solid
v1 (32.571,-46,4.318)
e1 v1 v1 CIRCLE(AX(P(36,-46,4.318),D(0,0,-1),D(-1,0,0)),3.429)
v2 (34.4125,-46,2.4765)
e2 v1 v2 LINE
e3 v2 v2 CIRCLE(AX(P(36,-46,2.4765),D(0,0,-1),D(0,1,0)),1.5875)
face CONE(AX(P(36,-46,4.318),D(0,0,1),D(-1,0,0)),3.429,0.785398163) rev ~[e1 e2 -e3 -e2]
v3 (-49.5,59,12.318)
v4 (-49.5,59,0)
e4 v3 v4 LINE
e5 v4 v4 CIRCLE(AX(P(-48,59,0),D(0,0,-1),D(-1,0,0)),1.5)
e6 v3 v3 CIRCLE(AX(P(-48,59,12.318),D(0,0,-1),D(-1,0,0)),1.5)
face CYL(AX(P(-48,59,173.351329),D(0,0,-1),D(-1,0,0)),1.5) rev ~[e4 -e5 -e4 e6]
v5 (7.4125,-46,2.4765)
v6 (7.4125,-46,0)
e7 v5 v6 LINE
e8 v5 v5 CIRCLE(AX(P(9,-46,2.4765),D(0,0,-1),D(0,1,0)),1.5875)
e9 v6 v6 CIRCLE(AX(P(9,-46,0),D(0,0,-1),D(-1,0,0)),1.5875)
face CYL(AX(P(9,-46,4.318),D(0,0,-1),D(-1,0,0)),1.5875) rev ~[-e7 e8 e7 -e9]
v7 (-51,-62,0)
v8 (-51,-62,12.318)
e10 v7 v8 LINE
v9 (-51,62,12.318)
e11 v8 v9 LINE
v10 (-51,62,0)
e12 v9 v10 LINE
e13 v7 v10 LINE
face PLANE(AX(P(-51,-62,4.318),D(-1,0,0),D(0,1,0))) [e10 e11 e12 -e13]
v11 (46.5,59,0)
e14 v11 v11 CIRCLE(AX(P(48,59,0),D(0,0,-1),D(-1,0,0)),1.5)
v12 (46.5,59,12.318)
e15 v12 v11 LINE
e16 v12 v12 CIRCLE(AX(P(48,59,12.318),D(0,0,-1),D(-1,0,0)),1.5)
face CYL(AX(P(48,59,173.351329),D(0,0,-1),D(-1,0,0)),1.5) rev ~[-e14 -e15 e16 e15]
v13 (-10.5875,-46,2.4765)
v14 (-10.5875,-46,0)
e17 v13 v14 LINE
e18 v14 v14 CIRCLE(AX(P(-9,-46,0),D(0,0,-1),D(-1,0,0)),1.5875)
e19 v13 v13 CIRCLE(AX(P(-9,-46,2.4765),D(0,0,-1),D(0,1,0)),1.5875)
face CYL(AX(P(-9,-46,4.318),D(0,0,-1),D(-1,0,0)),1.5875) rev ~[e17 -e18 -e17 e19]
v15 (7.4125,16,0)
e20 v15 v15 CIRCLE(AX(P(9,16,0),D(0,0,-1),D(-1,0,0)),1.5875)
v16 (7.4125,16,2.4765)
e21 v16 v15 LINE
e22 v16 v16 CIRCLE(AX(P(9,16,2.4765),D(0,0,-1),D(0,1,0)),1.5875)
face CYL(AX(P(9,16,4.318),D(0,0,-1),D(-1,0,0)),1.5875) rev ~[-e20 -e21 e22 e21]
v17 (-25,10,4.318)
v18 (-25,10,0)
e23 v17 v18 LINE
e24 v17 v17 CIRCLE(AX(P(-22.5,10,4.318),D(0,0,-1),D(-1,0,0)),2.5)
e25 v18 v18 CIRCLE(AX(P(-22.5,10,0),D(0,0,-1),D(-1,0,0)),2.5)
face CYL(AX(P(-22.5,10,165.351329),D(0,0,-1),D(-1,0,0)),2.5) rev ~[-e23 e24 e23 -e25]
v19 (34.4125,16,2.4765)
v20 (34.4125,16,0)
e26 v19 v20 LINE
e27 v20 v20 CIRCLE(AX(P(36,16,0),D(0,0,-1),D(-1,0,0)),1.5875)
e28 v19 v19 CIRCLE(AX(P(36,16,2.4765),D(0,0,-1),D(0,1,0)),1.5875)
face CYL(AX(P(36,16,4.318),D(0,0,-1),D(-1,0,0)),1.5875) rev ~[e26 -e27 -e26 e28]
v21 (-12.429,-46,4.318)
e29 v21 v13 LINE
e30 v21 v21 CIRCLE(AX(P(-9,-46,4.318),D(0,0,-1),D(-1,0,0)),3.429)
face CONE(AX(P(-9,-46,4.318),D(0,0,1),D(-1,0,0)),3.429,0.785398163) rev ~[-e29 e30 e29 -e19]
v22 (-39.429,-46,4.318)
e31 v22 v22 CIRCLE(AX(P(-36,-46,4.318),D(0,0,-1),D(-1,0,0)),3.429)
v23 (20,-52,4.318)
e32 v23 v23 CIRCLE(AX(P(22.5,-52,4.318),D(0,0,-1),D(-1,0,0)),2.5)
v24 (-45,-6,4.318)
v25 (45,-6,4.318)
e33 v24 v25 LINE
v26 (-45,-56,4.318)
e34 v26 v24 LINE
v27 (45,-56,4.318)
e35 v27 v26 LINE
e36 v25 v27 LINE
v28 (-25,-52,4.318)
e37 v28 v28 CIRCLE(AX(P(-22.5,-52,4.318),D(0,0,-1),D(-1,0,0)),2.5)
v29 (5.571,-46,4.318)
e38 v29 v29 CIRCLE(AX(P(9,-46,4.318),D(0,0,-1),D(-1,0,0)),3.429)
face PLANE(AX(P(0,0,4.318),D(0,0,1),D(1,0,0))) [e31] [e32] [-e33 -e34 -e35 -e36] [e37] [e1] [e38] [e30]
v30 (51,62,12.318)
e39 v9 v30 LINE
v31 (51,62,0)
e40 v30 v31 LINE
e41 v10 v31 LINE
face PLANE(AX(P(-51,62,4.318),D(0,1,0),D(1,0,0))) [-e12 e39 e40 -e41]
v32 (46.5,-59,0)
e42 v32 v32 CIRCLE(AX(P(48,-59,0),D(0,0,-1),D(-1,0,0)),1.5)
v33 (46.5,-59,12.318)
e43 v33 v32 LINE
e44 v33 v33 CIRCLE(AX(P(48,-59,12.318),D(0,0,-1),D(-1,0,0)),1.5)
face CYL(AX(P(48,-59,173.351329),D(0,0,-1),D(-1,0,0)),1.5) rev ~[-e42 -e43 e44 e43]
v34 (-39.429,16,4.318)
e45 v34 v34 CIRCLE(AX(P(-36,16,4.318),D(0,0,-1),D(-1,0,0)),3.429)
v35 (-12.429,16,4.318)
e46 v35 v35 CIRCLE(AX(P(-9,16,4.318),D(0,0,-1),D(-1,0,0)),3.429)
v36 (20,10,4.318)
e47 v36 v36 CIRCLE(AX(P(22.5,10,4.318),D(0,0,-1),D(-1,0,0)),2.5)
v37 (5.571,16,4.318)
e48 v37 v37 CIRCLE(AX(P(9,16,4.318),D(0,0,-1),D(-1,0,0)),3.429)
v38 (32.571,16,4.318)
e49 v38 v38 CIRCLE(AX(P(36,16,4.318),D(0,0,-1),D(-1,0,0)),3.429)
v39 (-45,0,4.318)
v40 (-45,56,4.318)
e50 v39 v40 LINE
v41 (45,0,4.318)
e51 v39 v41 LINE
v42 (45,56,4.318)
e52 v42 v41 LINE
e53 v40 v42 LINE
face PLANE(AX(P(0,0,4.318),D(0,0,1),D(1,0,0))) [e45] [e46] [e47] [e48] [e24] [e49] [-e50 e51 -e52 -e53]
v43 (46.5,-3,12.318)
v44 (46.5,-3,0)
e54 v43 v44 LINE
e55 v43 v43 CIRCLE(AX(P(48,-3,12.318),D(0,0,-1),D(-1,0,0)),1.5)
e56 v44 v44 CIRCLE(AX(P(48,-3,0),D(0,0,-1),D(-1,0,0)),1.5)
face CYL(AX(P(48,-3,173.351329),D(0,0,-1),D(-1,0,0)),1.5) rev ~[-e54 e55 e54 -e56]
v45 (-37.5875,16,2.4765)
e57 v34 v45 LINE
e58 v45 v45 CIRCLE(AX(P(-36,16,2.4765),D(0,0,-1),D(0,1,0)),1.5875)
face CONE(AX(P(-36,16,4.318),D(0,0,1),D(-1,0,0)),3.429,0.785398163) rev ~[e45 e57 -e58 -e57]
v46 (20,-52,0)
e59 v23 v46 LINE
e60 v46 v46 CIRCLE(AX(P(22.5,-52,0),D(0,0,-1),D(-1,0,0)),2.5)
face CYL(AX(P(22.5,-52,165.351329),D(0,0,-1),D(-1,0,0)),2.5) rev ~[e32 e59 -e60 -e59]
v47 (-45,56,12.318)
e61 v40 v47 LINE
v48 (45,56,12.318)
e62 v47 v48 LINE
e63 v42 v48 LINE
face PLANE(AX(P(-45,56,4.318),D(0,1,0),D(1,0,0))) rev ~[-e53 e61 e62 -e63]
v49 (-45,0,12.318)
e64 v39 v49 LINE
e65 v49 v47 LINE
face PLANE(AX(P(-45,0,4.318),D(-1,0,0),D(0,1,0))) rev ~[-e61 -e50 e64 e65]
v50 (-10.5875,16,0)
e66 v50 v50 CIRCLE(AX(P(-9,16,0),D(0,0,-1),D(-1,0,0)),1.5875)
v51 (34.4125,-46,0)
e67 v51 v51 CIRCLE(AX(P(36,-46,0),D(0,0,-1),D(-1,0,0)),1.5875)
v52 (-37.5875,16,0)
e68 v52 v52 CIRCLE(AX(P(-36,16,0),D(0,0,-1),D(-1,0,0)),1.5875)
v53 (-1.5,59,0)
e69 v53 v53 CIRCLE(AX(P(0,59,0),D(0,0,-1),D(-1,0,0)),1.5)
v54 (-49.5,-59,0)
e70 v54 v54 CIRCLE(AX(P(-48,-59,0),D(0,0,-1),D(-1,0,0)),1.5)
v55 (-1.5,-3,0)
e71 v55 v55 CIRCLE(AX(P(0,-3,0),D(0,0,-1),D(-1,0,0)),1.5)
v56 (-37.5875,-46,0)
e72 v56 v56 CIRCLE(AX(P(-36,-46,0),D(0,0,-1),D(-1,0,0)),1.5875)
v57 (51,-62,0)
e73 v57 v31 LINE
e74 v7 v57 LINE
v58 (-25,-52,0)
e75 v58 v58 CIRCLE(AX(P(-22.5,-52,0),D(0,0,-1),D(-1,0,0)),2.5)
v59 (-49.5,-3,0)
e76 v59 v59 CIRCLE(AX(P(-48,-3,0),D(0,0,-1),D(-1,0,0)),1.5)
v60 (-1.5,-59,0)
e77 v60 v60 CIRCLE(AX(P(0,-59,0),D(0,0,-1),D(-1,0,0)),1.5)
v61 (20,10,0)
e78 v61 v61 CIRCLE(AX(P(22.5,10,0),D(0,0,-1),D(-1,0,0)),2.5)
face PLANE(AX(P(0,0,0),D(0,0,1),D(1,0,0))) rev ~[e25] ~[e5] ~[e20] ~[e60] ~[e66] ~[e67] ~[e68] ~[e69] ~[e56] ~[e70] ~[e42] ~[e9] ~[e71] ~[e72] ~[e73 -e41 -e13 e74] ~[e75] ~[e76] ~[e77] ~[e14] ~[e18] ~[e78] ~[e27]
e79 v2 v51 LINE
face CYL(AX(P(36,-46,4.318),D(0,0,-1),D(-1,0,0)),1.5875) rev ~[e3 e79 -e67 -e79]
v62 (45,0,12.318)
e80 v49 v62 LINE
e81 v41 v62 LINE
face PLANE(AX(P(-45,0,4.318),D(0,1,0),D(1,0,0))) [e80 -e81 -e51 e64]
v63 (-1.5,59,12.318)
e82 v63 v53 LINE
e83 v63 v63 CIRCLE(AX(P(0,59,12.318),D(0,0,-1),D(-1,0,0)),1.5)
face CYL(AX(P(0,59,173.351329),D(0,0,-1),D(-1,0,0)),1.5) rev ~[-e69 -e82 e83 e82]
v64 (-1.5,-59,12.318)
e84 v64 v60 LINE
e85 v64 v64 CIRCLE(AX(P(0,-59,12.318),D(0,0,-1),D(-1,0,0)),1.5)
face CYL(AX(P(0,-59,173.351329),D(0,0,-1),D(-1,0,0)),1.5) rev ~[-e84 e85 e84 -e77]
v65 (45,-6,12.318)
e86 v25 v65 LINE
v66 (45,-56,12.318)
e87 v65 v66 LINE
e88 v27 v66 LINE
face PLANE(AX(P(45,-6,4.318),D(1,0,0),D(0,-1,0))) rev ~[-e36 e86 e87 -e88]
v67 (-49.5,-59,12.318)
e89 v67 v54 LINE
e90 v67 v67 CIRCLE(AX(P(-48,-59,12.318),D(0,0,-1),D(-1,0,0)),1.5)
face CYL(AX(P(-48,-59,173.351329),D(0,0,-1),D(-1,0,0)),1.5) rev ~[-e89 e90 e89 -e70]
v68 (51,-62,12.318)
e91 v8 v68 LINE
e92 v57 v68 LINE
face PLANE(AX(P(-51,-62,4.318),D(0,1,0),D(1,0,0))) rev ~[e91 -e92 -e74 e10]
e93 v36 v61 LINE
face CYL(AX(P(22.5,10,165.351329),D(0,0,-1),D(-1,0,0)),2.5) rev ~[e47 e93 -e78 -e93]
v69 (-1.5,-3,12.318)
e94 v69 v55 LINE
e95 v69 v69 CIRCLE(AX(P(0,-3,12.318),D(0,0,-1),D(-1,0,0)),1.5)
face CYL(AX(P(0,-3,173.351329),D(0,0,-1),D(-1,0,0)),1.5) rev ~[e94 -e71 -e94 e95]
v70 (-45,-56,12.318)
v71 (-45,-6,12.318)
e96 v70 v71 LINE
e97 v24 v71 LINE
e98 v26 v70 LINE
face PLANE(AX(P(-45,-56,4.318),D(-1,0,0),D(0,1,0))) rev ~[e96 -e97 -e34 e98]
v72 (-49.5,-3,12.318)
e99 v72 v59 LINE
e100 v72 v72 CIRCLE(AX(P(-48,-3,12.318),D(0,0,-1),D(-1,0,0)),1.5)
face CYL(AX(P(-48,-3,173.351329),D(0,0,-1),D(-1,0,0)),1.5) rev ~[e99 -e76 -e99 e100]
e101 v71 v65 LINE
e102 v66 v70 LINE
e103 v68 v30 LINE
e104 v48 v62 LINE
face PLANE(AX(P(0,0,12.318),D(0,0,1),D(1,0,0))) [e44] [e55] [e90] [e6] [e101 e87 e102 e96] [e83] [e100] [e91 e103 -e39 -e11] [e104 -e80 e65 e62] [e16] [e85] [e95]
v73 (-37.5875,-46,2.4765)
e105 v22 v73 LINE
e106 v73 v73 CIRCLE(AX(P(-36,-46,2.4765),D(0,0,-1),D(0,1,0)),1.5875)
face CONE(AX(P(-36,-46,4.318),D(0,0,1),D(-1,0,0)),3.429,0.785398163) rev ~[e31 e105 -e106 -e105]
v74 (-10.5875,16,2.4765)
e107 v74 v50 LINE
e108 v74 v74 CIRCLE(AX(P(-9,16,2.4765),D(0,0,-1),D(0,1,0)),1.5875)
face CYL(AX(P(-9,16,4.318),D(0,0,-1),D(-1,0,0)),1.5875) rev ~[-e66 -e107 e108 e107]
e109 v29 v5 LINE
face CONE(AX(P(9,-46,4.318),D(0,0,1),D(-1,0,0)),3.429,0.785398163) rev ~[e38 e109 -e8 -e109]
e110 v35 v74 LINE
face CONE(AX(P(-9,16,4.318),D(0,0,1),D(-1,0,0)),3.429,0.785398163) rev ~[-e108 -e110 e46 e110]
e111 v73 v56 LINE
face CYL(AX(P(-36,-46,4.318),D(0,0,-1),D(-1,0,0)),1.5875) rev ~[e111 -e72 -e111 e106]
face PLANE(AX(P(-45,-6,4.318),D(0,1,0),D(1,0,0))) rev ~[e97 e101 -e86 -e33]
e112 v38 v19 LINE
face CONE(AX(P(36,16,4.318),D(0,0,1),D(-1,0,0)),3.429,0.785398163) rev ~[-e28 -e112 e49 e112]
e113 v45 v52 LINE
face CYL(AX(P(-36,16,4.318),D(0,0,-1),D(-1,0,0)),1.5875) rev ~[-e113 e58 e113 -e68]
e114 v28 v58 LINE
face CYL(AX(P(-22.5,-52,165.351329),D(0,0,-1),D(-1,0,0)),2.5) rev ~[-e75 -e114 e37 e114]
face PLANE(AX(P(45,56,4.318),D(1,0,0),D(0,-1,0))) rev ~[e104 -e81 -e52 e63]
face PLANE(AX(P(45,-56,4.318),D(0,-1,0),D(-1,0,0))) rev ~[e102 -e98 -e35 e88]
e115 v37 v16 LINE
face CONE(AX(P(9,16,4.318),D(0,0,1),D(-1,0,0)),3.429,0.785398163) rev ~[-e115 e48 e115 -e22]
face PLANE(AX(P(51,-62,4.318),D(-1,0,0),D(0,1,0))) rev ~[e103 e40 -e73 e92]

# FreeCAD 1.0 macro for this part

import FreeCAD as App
import Part
import Sketcher
Q = App.Units.Quantity

doc = App.newDocument("Part")
params = doc.addObject("Spreadsheet::Sheet", "Params")
for row, (alias, value) in enumerate([
    ("sketch1_width", "102 mm"),
    ("sketch1_height", "124 mm"),
    ("pad1_length", "4.318 mm"),
    ("sketch2_width", "102 mm"),
    ("sketch2_width2", "90 mm"),
    ("sketch2_height", "124 mm"),
    ("sketch2_height2", "50 mm"),
    ("sketch2_height3", "56 mm"),
    ("pad2_length", "8 mm"),
    ("hole_diameter", "3.175 mm"),
    ("hole_csink_diameter", "6.858 mm"),
    ("sketch4_diameter", "5 mm"),
    ("hole2_diameter", "5 mm"),
    ("sketch5_diameter", "3 mm"),
    ("hole3_diameter", "3 mm"),
], start=1):
    params.set(f"A{row}", alias)
    params.set(f"B{row}", "=" + value)
    params.setAlias(f"B{row}", alias)

body = doc.addObject("PartDesign::Body", "Body")

# Sketch on XY plane
sketch1 = body.newObject("Sketcher::SketchObject", "Sketch")
sketch1.AttachmentSupport = (doc.getObject("XY_Plane"), [""])
sketch1.MapMode = "FlatFace"
sketch1.addGeometry([
    Part.LineSegment(App.Vector(-51, 62, 0), App.Vector(-51, -62, 0)),
    Part.LineSegment(App.Vector(-51, -62, 0), App.Vector(51, -62, 0)),
    Part.LineSegment(App.Vector(51, -62, 0), App.Vector(51, 62, 0)),
    Part.LineSegment(App.Vector(51, 62, 0), App.Vector(-51, 62, 0)),
], False)
sketch1.addConstraint([
    Sketcher.Constraint("Coincident", 0, 2, 1, 1),
    Sketcher.Constraint("Coincident", 1, 2, 2, 1),
    Sketcher.Constraint("Coincident", 2, 2, 3, 1),
    Sketcher.Constraint("Coincident", 3, 2, 0, 1),
    Sketcher.Constraint("Vertical", 0),
    Sketcher.Constraint("Horizontal", 1),
    Sketcher.Constraint("Vertical", 2),
    Sketcher.Constraint("Horizontal", 3),
    Sketcher.Constraint("Symmetric", 0, 2, 2, 2, -1, 1),
    Sketcher.Constraint("DistanceX", 1, 1, 1, 2, Q("102 mm")),
    Sketcher.Constraint("DistanceY", 0, 2, 0, 1, Q("124 mm")),
])
sketch1.setExpression("Constraints[9]", "Params.sketch1_width")
sketch1.setExpression("Constraints[10]", "Params.sketch1_height")
pad1 = body.newObject("PartDesign::Pad", "Pad")
pad1.Profile = sketch1
pad1.setExpression("Length", "Params.pad1_length")

# Sketch on XY plane
sketch2 = body.newObject("Sketcher::SketchObject", "Sketch001")
sketch2.AttachmentSupport = (doc.getObject("XY_Plane"), [""])
sketch2.MapMode = "FlatFace"
sketch2.AttachmentOffset = App.Placement(App.Vector(0, 0, 4.318), App.Rotation())
sketch2.addGeometry([
    Part.LineSegment(App.Vector(-51, 62, 0), App.Vector(-51, -62, 0)),  # 0
    Part.LineSegment(App.Vector(-51, -62, 0), App.Vector(51, -62, 0)),  # 1
    Part.LineSegment(App.Vector(51, -62, 0), App.Vector(51, 62, 0)),  # 2
    Part.LineSegment(App.Vector(51, 62, 0), App.Vector(-51, 62, 0)),  # 3
    Part.LineSegment(App.Vector(-45, -56, 0), App.Vector(-45, -6, 0)),  # 4
    Part.LineSegment(App.Vector(-45, -6, 0), App.Vector(45, -6, 0)),  # 5
    Part.LineSegment(App.Vector(45, -6, 0), App.Vector(45, -56, 0)),  # 6
    Part.LineSegment(App.Vector(45, -56, 0), App.Vector(-45, -56, 0)),  # 7
    Part.LineSegment(App.Vector(-45, 0, 0), App.Vector(-45, 56, 0)),  # 8
    Part.LineSegment(App.Vector(-45, 56, 0), App.Vector(45, 56, 0)),  # 9
    Part.LineSegment(App.Vector(45, 56, 0), App.Vector(45, 0, 0)),  # 10
    Part.LineSegment(App.Vector(45, 0, 0), App.Vector(-45, 0, 0)),  # 11
], False)
sketch2.addConstraint([
    Sketcher.Constraint("Coincident", 0, 2, 1, 1),
    Sketcher.Constraint("Coincident", 1, 2, 2, 1),
    Sketcher.Constraint("Coincident", 2, 2, 3, 1),
    Sketcher.Constraint("Coincident", 3, 2, 0, 1),
    Sketcher.Constraint("Coincident", 4, 2, 5, 1),
    Sketcher.Constraint("Coincident", 5, 2, 6, 1),
    Sketcher.Constraint("Coincident", 6, 2, 7, 1),
    Sketcher.Constraint("Coincident", 7, 2, 4, 1),
    Sketcher.Constraint("Coincident", 8, 2, 9, 1),
    Sketcher.Constraint("Coincident", 9, 2, 10, 1),
    Sketcher.Constraint("Coincident", 10, 2, 11, 1),
    Sketcher.Constraint("Coincident", 11, 2, 8, 1),
    Sketcher.Constraint("Vertical", 0),
    Sketcher.Constraint("Horizontal", 1),
    Sketcher.Constraint("Vertical", 2),
    Sketcher.Constraint("Horizontal", 3),
    Sketcher.Constraint("Vertical", 4),
    Sketcher.Constraint("Horizontal", 5),
    Sketcher.Constraint("Vertical", 6),
    Sketcher.Constraint("Horizontal", 7),
    Sketcher.Constraint("Vertical", 8),
    Sketcher.Constraint("Horizontal", 9),
    Sketcher.Constraint("Vertical", 10),
    Sketcher.Constraint("Horizontal", 11),
    Sketcher.Constraint("Symmetric", 0, 2, 2, 2, -1, 1),
    Sketcher.Constraint("Symmetric", 6, 2, 8, 2, -1, 1),
    Sketcher.Constraint("Symmetric", 10, 2, 11, 2, -1, 1),
    Sketcher.Constraint("Vertical", 7, 2, 8, 2),
    Sketcher.Constraint("DistanceX", 1, 1, 1, 2, Q("102 mm")),
    Sketcher.Constraint("DistanceX", 5, 1, 5, 2, Q("90 mm")),
    Sketcher.Constraint("DistanceY", 0, 2, 0, 1, Q("124 mm")),
    Sketcher.Constraint("DistanceY", 4, 1, 4, 2, Q("50 mm")),
    Sketcher.Constraint("DistanceY", 8, 1, 8, 2, Q("56 mm")),
])
sketch2.setExpression("Constraints[28]", "Params.sketch2_width")
sketch2.setExpression("Constraints[29]", "Params.sketch2_width2")
sketch2.setExpression("Constraints[30]", "Params.sketch2_height")
sketch2.setExpression("Constraints[31]", "Params.sketch2_height2")
sketch2.setExpression("Constraints[32]", "Params.sketch2_height3")
pad2 = body.newObject("PartDesign::Pad", "Pad001")
pad2.Profile = sketch2
pad2.setExpression("Length", "Params.pad2_length")

# Sketch on XY plane
sketch3 = body.newObject("Sketcher::SketchObject", "Sketch002")
sketch3.AttachmentSupport = (doc.getObject("XY_Plane"), [""])
sketch3.MapMode = "FlatFace"
sketch3.AttachmentOffset = App.Placement(App.Vector(0, 0, 4.318), App.Rotation())
sketch3.addGeometry([
    Part.Circle(App.Vector(-36, 16, 0), App.Vector(0, 0, 1), 1.6),  # 0
    Part.Circle(App.Vector(-9, 16, 0), App.Vector(0, 0, 1), 1.6),  # 1
    Part.Circle(App.Vector(9, 16, 0), App.Vector(0, 0, 1), 1.6),  # 2
    Part.Circle(App.Vector(36, 16, 0), App.Vector(0, 0, 1), 1.6),  # 3
    Part.Circle(App.Vector(9, -46, 0), App.Vector(0, 0, 1), 1.6),  # 4
    Part.Circle(App.Vector(36, -46, 0), App.Vector(0, 0, 1), 1.6),  # 5
    Part.Circle(App.Vector(-9, -46, 0), App.Vector(0, 0, 1), 1.6),  # 6
    Part.Circle(App.Vector(-36, -46, 0), App.Vector(0, 0, 1), 1.6),  # 7
], False)
sketch3.addConstraint([
    Sketcher.Constraint("Equal", 0, 1),
    Sketcher.Constraint("Equal", 1, 2),
    Sketcher.Constraint("Equal", 2, 3),
    Sketcher.Constraint("Equal", 3, 4),
    Sketcher.Constraint("Equal", 4, 5),
    Sketcher.Constraint("Equal", 5, 6),
    Sketcher.Constraint("Equal", 6, 7),
    Sketcher.Constraint("Symmetric", 1, 3, 2, 3, -2),
    Sketcher.Constraint("Symmetric", 0, 3, 3, 3, -2),
    Sketcher.Constraint("Symmetric", 4, 3, 6, 3, -2),
    Sketcher.Constraint("Symmetric", 5, 3, 7, 3, -2),
    Sketcher.Constraint("Horizontal", 0, 3, 1, 3),
    Sketcher.Constraint("Horizontal", 4, 3, 5, 3),
    Sketcher.Constraint("Vertical", 2, 3, 4, 3),
    Sketcher.Constraint("Vertical", 3, 3, 5, 3),
    Sketcher.Constraint("Diameter", 0, Q("3.175 mm")),
    Sketcher.Constraint("DistanceX", 0, 3, -1, 1, Q("36 mm")),
    Sketcher.Constraint("DistanceY", -1, 1, 0, 3, Q("16 mm")),
    Sketcher.Constraint("DistanceX", 1, 3, -1, 1, Q("9 mm")),
    Sketcher.Constraint("DistanceY", 4, 3, -1, 1, Q("46 mm")),
])
doc.recompute()
hole = body.newObject("PartDesign::Hole", "Hole")
hole.Profile = sketch3
hole.ThreadType = "None"
hole.setExpression("Diameter", "Params.hole_diameter")
hole.DepthType = "ThroughAll"
hole.HoleCutType = "Countersink"
hole.setExpression("HoleCutDiameter", "Params.hole_csink_diameter")
hole.HoleCutCountersinkAngle = 90

# Sketch on XY plane
sketch4 = body.newObject("Sketcher::SketchObject", "Sketch003")
sketch4.AttachmentSupport = (doc.getObject("XY_Plane"), [""])
sketch4.MapMode = "FlatFace"
sketch4.AttachmentOffset = App.Placement(App.Vector(0, 0, 4.318), App.Rotation())
sketch4.addGeometry([
    Part.Circle(App.Vector(-22.5, 10, 0), App.Vector(0, 0, 1), 2.5),
    Part.Circle(App.Vector(22.5, 10, 0), App.Vector(0, 0, 1), 2.5),
    Part.Circle(App.Vector(22.5, -52, 0), App.Vector(0, 0, 1), 2.5),
    Part.Circle(App.Vector(-22.5, -52, 0), App.Vector(0, 0, 1), 2.5),
], False)
sketch4.addConstraint([
    Sketcher.Constraint("Equal", 0, 1),
    Sketcher.Constraint("Equal", 1, 2),
    Sketcher.Constraint("Equal", 2, 3),
    Sketcher.Constraint("Symmetric", 0, 3, 1, 3, -2),
    Sketcher.Constraint("Symmetric", 2, 3, 3, 3, -2),
    Sketcher.Constraint("Vertical", 1, 3, 2, 3),
    Sketcher.Constraint("Diameter", 0, Q("5 mm")),
    Sketcher.Constraint("DistanceY", -1, 1, 0, 3, Q("10 mm")),
    Sketcher.Constraint("DistanceY", 2, 3, -1, 1, Q("52 mm")),
    Sketcher.Constraint("DistanceX", 0, 3, 1, 3, Q("45 mm")),
])
sketch4.setExpression("Constraints[6]", "Params.sketch4_diameter")
doc.recompute()
hole2 = body.newObject("PartDesign::Hole", "Hole001")
hole2.Profile = sketch4
hole2.ThreadType = "None"
hole2.setExpression("Diameter", "Params.hole2_diameter")
hole2.DepthType = "ThroughAll"

# Sketch on XY plane
sketch5 = body.newObject("Sketcher::SketchObject", "Sketch004")
sketch5.AttachmentSupport = (doc.getObject("XY_Plane"), [""])
sketch5.MapMode = "FlatFace"
sketch5.AttachmentOffset = App.Placement(App.Vector(0, 0, 12.318), App.Rotation())
sketch5.addGeometry([
    Part.Circle(App.Vector(-48, 59, 0), App.Vector(0, 0, 1), 1.5),  # 0
    Part.Circle(App.Vector(0, 59, 0), App.Vector(0, 0, 1), 1.5),  # 1
    Part.Circle(App.Vector(48, 59, 0), App.Vector(0, 0, 1), 1.5),  # 2
    Part.Circle(App.Vector(-48, -3, 0), App.Vector(0, 0, 1), 1.5),  # 3
    Part.Circle(App.Vector(48, -3, 0), App.Vector(0, 0, 1), 1.5),  # 4
    Part.Circle(App.Vector(-48, -59, 0), App.Vector(0, 0, 1), 1.5),  # 5
    Part.Circle(App.Vector(0, -59, 0), App.Vector(0, 0, 1), 1.5),  # 6
    Part.Circle(App.Vector(48, -59, 0), App.Vector(0, 0, 1), 1.5),  # 7
    Part.Circle(App.Vector(0, -3, 0), App.Vector(0, 0, 1), 1.5),  # 8
], False)
sketch5.addConstraint([
    Sketcher.Constraint("Equal", 0, 1),
    Sketcher.Constraint("Equal", 1, 2),
    Sketcher.Constraint("Equal", 2, 3),
    Sketcher.Constraint("Equal", 3, 4),
    Sketcher.Constraint("Equal", 4, 5),
    Sketcher.Constraint("Equal", 5, 6),
    Sketcher.Constraint("Equal", 6, 7),
    Sketcher.Constraint("Equal", 7, 8),
    Sketcher.Constraint("Symmetric", 2, 3, 5, 3, -1, 1),
    Sketcher.Constraint("Symmetric", 1, 3, 6, 3, -1, 1),
    Sketcher.Constraint("Symmetric", 0, 3, 7, 3, -1, 1),
    Sketcher.Constraint("Symmetric", 0, 3, 2, 3, -2),
    Sketcher.Constraint("Symmetric", 3, 3, 4, 3, -2),
    Sketcher.Constraint("PointOnObject", 1, 3, -2),
    Sketcher.Constraint("PointOnObject", 8, 3, -2),
    Sketcher.Constraint("Horizontal", 0, 3, 1, 3),
    Sketcher.Constraint("Horizontal", 4, 3, 8, 3),
    Sketcher.Constraint("Vertical", 0, 3, 3, 3),
    Sketcher.Constraint("Diameter", 0, Q("3 mm")),
    Sketcher.Constraint("DistanceX", 0, 3, -1, 1, Q("48 mm")),
    Sketcher.Constraint("DistanceY", -1, 1, 0, 3, Q("59 mm")),
    Sketcher.Constraint("DistanceY", 3, 3, -1, 1, Q("3 mm")),
])
sketch5.setExpression("Constraints[18]", "Params.sketch5_diameter")
doc.recompute()
hole3 = body.newObject("PartDesign::Hole", "Hole002")
hole3.Profile = sketch5
hole3.ThreadType = "None"
hole3.setExpression("Diameter", "Params.hole3_diameter")
hole3.DepthType = "ThroughAll"

doc.recompute()
